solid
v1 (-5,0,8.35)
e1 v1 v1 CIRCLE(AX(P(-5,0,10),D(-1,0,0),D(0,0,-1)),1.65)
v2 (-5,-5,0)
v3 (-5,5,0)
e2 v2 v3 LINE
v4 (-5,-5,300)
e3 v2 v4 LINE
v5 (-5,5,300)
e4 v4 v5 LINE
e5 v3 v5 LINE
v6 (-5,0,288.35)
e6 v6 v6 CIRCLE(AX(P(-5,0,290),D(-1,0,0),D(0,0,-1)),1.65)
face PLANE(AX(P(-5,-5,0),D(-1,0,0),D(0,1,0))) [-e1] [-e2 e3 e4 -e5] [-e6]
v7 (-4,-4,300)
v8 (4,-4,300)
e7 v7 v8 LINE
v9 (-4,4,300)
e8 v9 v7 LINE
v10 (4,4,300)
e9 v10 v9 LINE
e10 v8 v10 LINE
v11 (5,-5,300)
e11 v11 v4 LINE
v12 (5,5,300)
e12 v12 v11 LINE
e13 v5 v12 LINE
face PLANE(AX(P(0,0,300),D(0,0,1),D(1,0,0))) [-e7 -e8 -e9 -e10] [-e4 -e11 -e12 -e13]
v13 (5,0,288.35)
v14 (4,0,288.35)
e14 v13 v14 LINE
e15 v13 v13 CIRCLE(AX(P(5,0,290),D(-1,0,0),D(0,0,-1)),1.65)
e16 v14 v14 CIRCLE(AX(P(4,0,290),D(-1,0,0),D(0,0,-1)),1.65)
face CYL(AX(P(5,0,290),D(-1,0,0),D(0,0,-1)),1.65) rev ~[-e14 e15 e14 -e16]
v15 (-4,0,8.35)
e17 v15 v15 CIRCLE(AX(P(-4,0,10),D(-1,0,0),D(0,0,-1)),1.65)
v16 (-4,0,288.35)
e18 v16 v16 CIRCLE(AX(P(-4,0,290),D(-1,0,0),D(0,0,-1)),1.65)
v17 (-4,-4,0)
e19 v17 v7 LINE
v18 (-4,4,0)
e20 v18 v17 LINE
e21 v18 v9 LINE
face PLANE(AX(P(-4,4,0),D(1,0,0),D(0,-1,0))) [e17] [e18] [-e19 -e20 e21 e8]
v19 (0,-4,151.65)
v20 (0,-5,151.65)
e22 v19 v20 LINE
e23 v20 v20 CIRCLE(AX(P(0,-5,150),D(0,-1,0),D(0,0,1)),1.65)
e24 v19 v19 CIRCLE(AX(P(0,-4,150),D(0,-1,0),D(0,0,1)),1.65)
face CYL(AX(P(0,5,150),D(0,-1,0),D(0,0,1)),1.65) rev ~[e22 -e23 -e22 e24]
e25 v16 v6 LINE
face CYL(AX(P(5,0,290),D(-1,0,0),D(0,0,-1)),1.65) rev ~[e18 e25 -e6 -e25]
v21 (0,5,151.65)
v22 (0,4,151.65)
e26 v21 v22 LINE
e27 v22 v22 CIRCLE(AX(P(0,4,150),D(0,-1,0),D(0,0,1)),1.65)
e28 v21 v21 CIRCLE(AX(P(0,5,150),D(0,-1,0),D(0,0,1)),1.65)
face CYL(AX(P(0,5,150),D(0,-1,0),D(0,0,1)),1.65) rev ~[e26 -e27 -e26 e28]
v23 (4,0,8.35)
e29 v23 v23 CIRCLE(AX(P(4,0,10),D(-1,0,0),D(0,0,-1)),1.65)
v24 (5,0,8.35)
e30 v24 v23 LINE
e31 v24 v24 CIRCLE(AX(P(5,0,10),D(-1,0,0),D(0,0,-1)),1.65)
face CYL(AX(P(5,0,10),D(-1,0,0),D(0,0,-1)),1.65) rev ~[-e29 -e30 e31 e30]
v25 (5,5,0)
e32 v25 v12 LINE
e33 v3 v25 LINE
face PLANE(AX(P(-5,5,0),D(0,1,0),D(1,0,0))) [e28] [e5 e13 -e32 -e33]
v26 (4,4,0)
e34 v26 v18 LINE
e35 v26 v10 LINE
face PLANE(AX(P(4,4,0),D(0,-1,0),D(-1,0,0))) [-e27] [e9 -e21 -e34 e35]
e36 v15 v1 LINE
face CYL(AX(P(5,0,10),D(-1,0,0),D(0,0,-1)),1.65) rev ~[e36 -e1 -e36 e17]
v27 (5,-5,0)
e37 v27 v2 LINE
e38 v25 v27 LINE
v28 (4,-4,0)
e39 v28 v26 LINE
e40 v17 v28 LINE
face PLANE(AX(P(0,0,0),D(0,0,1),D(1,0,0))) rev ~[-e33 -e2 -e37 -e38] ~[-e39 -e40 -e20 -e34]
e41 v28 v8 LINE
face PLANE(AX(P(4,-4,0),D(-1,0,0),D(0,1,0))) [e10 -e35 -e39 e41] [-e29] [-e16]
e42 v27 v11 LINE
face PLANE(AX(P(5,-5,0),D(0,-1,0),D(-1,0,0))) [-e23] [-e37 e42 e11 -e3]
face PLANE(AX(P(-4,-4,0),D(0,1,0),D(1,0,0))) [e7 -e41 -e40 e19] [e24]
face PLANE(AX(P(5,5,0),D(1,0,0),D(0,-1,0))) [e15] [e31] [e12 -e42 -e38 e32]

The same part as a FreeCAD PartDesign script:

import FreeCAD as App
import Part
import Sketcher

V = App.Vector
Q = App.Units.Quantity

doc = App.newDocument("Part")
body = doc.addObject("PartDesign::Body", "Body")

# Sketch on XY plane
sketch1 = body.newObject("Sketcher::SketchObject", "Sketch")
sketch1.AttachmentSupport = (doc.getObject("XY_Plane"), [""])
sketch1.MapMode = "FlatFace"
sketch1.addGeometry([
    Part.LineSegment(V(-5, -5, 0), V(5, -5, 0)),  # 0
    Part.LineSegment(V(5, -5, 0), V(5, 5, 0)),  # 1
    Part.LineSegment(V(5, 5, 0), V(-5, 5, 0)),  # 2
    Part.LineSegment(V(-5, 5, 0), V(-5, -5, 0)),  # 3
    Part.LineSegment(V(-4, 4, 0), V(4, 4, 0)),  # 4
    Part.LineSegment(V(4, 4, 0), V(4, -4, 0)),  # 5
    Part.LineSegment(V(4, -4, 0), V(-4, -4, 0)),  # 6
    Part.LineSegment(V(-4, -4, 0), V(-4, 4, 0)),  # 7
], False)
sketch1.addConstraint([
    Sketcher.Constraint("Coincident", 0, 2, 1, 1),
    Sketcher.Constraint("Coincident", 1, 2, 2, 1),
    Sketcher.Constraint("Coincident", 2, 2, 3, 1),
    Sketcher.Constraint("Coincident", 3, 2, 0, 1),
    Sketcher.Constraint("Coincident", 4, 2, 5, 1),
    Sketcher.Constraint("Coincident", 5, 2, 6, 1),
    Sketcher.Constraint("Coincident", 6, 2, 7, 1),
    Sketcher.Constraint("Coincident", 7, 2, 4, 1),
    Sketcher.Constraint("Horizontal", 0),
    Sketcher.Constraint("Vertical", 1),
    Sketcher.Constraint("Horizontal", 2),
    Sketcher.Constraint("Vertical", 3),
    Sketcher.Constraint("Horizontal", 4),
    Sketcher.Constraint("Vertical", 5),
    Sketcher.Constraint("Horizontal", 6),
    Sketcher.Constraint("Vertical", 7),
    Sketcher.Constraint("Symmetric", 0, 2, 2, 2, -1, 1),
    Sketcher.Constraint("Symmetric", 4, 2, 6, 2, -1, 1),
    Sketcher.Constraint("Equal", 2, 1),
    Sketcher.Constraint("Equal", 6, 5),
    Sketcher.Constraint("DistanceX", 0, 1, 0, 2, Q("10 mm")),
    Sketcher.Constraint("DistanceX", 4, 2, 1, 2, Q("1 mm")),
])
pad1 = body.newObject("PartDesign::Pad", "Pad")
pad1.Profile = sketch1
pad1.Length = 300

# Sketch on YZ plane
sketch2 = body.newObject("Sketcher::SketchObject", "Sketch001")
sketch2.AttachmentSupport = (doc.getObject("YZ_Plane"), [""])
sketch2.MapMode = "FlatFace"
sketch2.AttachmentOffset = App.Placement(V(0, 0, 5), App.Rotation())
sketch2.addGeometry([
    Part.Circle(V(0, 290, 0), V(0, 0, 1), 1.6),
    Part.Circle(V(0, 10, 0), V(0, 0, 1), 1.6),
], False)
sketch2.addConstraint([
    Sketcher.Constraint("Equal", 0, 1),
    Sketcher.Constraint("PointOnObject", 0, 3, -2),
    Sketcher.Constraint("PointOnObject", 1, 3, -2),
    Sketcher.Constraint("Diameter", 0, Q("3.3 mm")),
    Sketcher.Constraint("DistanceY", -1, 1, 0, 3, Q("290 mm")),
    Sketcher.Constraint("DistanceY", -1, 1, 1, 3, Q("10 mm")),
])
doc.recompute()
hole = body.newObject("PartDesign::Hole", "Hole")
hole.Profile = sketch2
hole.ThreadType = "None"
hole.Diameter = 3.3
hole.DepthType = "ThroughAll"

# Sketch on XZ plane
sketch3 = body.newObject("Sketcher::SketchObject", "Sketch002")
sketch3.AttachmentSupport = (doc.getObject("XZ_Plane"), [""])
sketch3.MapMode = "FlatFace"
sketch3.AttachmentOffset = App.Placement(V(0, 0, -5), App.Rotation())
sketch3.addGeometry(Part.Circle(V(0, 150, 0), V(0, 0, 1), 1.6), False)
sketch3.addConstraint([
    Sketcher.Constraint("PointOnObject", 0, 3, -2),
    Sketcher.Constraint("Diameter", 0, Q("3.3 mm")),
    Sketcher.Constraint("DistanceY", -1, 1, 0, 3, Q("150 mm")),
])
doc.recompute()
hole2 = body.newObject("PartDesign::Hole", "Hole001")
hole2.Profile = sketch3
hole2.ThreadType = "None"
hole2.Diameter = 3.3
hole2.DepthType = "ThroughAll"
hole2.Reversed = True

doc.recompute()
